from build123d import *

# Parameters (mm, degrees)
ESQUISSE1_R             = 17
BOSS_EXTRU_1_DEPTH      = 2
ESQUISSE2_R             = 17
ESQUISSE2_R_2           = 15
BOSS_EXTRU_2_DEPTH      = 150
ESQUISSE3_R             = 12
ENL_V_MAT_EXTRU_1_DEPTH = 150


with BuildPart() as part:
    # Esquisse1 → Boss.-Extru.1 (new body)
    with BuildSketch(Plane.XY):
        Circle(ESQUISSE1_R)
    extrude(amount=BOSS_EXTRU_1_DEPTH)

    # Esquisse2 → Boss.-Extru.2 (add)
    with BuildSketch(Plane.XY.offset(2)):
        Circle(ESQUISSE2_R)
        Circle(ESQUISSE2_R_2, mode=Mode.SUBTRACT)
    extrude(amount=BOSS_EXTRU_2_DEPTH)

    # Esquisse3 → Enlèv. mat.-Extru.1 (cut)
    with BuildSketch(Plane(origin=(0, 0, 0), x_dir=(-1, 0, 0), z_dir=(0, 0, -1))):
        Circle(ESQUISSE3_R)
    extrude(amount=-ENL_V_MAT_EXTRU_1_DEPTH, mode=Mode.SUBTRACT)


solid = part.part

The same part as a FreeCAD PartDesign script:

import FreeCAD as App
import Part
import Sketcher
from FreeCAD import Vector
Q = App.Units.Quantity

doc = App.newDocument("Part")
params = doc.addObject("Spreadsheet::Sheet", "Params")
for row, (alias, value) in enumerate([
    ("sketch1_diameter", "34 mm"),
    ("pad1_length", "2 mm"),
    ("sketch2_diameter", "34 mm"),
    ("sketch2_diameter2", "30 mm"),
    ("pad2_length", "150 mm"),
    ("sketch3_diameter", "24 mm"),
    ("pocket1_length", "150 mm"),
], start=1):
    params.set(f"A{row}", alias)
    params.set(f"B{row}", "=" + value)
    params.setAlias(f"B{row}", alias)

body = doc.addObject("PartDesign::Body", "Body")

# Sketch on XY plane
sketch1 = doc.addObject("Sketcher::SketchObject", "Sketch")
body.addObject(sketch1)
sketch1.AttachmentSupport = (doc.XY_Plane, [""])
sketch1.MapMode = "FlatFace"
sketch1.addGeometry(Part.Circle(Vector(0, 0, 0), Vector(0, 0, 1), 17), False)
sketch1.addConstraint(Sketcher.Constraint("Coincident", 0, 3, -1, 1))
sketch1.addConstraint(Sketcher.Constraint("Diameter", 0, Q("34 mm")))
sketch1.setExpression("Constraints[1]", "Params.sketch1_diameter")
pad1 = doc.addObject("PartDesign::Pad", "Pad")
body.addObject(pad1)
pad1.Profile = sketch1
pad1.setExpression("Length", "Params.pad1_length")

# Sketch on XY plane
sketch2 = doc.addObject("Sketcher::SketchObject", "Sketch001")
body.addObject(sketch2)
sketch2.AttachmentSupport = (doc.XY_Plane, [""])
sketch2.MapMode = "FlatFace"
sketch2.AttachmentOffset = App.Placement(Vector(0, 0, 2), App.Rotation())
sketch2.addGeometry(Part.Circle(Vector(0, 0, 0), Vector(0, 0, 1), 17), False)
sketch2.addGeometry(Part.Circle(Vector(0, 0, 0), Vector(0, 0, 1), 15), False)
sketch2.addConstraint(Sketcher.Constraint("Coincident", 0, 3, -1, 1))
sketch2.addConstraint(Sketcher.Constraint("Coincident", 1, 3, -1, 1))
sketch2.addConstraint(Sketcher.Constraint("Diameter", 0, Q("34 mm")))
sketch2.addConstraint(Sketcher.Constraint("Diameter", 1, Q("30 mm")))
sketch2.setExpression("Constraints[2]", "Params.sketch2_diameter")
sketch2.setExpression("Constraints[3]", "Params.sketch2_diameter2")
pad2 = doc.addObject("PartDesign::Pad", "Pad001")
body.addObject(pad2)
pad2.Profile = sketch2
pad2.setExpression("Length", "Params.pad2_length")

# Sketch on XY plane
sketch3 = doc.addObject("Sketcher::SketchObject", "Sketch002")
body.addObject(sketch3)
sketch3.AttachmentSupport = (doc.XY_Plane, [""])
sketch3.MapMode = "FlatFace"
sketch3.addGeometry(Part.Circle(Vector(0, 0, 0), Vector(0, 0, 1), 12), False)
sketch3.addConstraint(Sketcher.Constraint("Coincident", 0, 3, -1, 1))
sketch3.addConstraint(Sketcher.Constraint("Diameter", 0, Q("24 mm")))
sketch3.setExpression("Constraints[1]", "Params.sketch3_diameter")
pocket1 = doc.addObject("PartDesign::Pocket", "Pocket")
body.addObject(pocket1)
pocket1.Profile = sketch3
pocket1.setExpression("Length", "Params.pocket1_length")
pocket1.Reversed = True

doc.recompute()
